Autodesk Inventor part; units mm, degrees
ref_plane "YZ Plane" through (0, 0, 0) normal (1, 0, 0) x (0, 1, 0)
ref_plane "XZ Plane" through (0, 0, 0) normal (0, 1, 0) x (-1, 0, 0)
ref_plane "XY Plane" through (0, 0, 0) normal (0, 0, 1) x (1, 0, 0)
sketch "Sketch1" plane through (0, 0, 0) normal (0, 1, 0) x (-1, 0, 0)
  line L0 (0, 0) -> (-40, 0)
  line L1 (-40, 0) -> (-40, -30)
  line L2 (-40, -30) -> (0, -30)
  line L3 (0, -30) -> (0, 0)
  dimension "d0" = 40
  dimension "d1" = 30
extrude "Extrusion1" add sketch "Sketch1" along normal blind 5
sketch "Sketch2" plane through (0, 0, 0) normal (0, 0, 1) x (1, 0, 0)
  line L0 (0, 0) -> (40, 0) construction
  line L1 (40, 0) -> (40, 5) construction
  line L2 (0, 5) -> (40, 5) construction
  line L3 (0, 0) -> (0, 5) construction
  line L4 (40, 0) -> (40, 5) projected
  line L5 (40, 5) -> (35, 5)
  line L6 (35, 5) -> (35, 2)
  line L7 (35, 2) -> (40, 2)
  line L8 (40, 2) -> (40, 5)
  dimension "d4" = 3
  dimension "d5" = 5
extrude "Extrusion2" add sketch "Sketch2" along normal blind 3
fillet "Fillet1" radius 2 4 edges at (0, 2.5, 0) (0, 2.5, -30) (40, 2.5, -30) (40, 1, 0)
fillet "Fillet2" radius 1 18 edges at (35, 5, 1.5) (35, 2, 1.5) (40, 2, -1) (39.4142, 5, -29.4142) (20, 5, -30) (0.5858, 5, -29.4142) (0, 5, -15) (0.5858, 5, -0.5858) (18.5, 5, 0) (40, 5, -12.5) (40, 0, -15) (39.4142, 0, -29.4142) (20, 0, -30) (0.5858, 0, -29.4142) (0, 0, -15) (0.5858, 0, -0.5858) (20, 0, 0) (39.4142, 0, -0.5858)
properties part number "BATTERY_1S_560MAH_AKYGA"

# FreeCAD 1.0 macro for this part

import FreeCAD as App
import Part
import Sketcher

V = App.Vector


def edges_at(feature, points):
    """Names of the edges that pass closest to the given points."""
    edges = feature.Shape.Edges
    near = lambda p: min(range(len(edges)), key=lambda i: edges[i].distToShape(Part.Vertex(*p))[0])
    return sorted({f"Edge{near(p) + 1}" for p in points})


def add_polygon(sketch, points):
    """Adds a closed chain of lines whose ends are joined by coincident constraints."""
    first, n = sketch.GeometryCount, len(points)
    for a, b in zip(points, points[1:] + points[:1]):
        sketch.addGeometry(Part.LineSegment(App.Vector(*a, 0), App.Vector(*b, 0)), False)
    for i in range(n):
        sketch.addConstraint(Sketcher.Constraint("Coincident", first + i, 2, first + (i + 1) % n, 1))

doc = App.newDocument("Part")
body = doc.addObject("PartDesign::Body", "Body")

sketch1 = body.newObject("Sketcher::SketchObject", "Sketch")
sketch1.AttachmentSupport = (doc.getObject("XZ_Plane"), [""])
sketch1.MapMode = "FlatFace"
add_polygon(sketch1, [(0, -30), (0, 0), (40, 0), (40, -30)])
sketch1.addConstraint([
    Sketcher.Constraint("Vertical", 0),
    Sketcher.Constraint("Horizontal", 1),
    Sketcher.Constraint("Vertical", 2),
    Sketcher.Constraint("Horizontal", 3),
    Sketcher.Constraint("Coincident", 0, 2, -1, 1),
    Sketcher.Constraint("DistanceX", 1, 1, 1, 2, 40.0),
    Sketcher.Constraint("DistanceY", 0, 1, 0, 2, 30.0),
])
pad1 = body.newObject("PartDesign::Pad", "Pad")
pad1.Profile = sketch1
pad1.Length = 5
pad1.Reversed = True

sketch2 = body.newObject("Sketcher::SketchObject", "Sketch001")
sketch2.AttachmentSupport = (doc.getObject("XY_Plane"), [""])
sketch2.MapMode = "FlatFace"
add_polygon(sketch2, [(35, 2), (40, 2), (40, 5), (35, 5)])
sketch2.addConstraint([
    Sketcher.Constraint("Horizontal", 0),
    Sketcher.Constraint("Vertical", 1),
    Sketcher.Constraint("Horizontal", 2),
    Sketcher.Constraint("Vertical", 3),
    Sketcher.Constraint("DistanceX", 0, 1, 0, 2, 5.0),
    Sketcher.Constraint("DistanceY", 1, 1, 1, 2, 3.0),
    Sketcher.Constraint("DistanceY", -1, 1, 1, 2, 5.0),
    Sketcher.Constraint("DistanceX", -1, 1, 0, 2, 40.0),
])
pad2 = body.newObject("PartDesign::Pad", "Pad001")
pad2.Profile = sketch2
pad2.Length = 3
doc.recompute()

fillet = body.newObject("PartDesign::Fillet", "Fillet")
fillet.Base = (pad2, edges_at(pad2, [
    (0, 2.5, 0),
    (0, 2.5, -30),
    (40, 2.5, -30),
    (40, 1, 0),
]))
fillet.Radius = 2
doc.recompute()

fillet2 = body.newObject("PartDesign::Fillet", "Fillet001")
fillet2.Base = (fillet, edges_at(fillet, [
    (35, 5, 1.5),
    (35, 2, 1.5),
    (40, 2, -1),
    (39.414, 5, -29.414),
    (20, 5, -30),
    (0.586, 5, -29.414),
    (0, 5, -15),
    (0.586, 5, -0.586),
    (18.5, 5, 0),
    (40, 5, -12.5),
    (40, 0, -15),
    (39.414, 0, -29.414),
    (20, 0, -30),
    (0.586, 0, -29.414),
    (0, 0, -15),
    (0.586, 0, -0.586),
    (20, 0, 0),
    (39.414, 0, -0.586),
]))
fillet2.Radius = 1

doc.recompute()
